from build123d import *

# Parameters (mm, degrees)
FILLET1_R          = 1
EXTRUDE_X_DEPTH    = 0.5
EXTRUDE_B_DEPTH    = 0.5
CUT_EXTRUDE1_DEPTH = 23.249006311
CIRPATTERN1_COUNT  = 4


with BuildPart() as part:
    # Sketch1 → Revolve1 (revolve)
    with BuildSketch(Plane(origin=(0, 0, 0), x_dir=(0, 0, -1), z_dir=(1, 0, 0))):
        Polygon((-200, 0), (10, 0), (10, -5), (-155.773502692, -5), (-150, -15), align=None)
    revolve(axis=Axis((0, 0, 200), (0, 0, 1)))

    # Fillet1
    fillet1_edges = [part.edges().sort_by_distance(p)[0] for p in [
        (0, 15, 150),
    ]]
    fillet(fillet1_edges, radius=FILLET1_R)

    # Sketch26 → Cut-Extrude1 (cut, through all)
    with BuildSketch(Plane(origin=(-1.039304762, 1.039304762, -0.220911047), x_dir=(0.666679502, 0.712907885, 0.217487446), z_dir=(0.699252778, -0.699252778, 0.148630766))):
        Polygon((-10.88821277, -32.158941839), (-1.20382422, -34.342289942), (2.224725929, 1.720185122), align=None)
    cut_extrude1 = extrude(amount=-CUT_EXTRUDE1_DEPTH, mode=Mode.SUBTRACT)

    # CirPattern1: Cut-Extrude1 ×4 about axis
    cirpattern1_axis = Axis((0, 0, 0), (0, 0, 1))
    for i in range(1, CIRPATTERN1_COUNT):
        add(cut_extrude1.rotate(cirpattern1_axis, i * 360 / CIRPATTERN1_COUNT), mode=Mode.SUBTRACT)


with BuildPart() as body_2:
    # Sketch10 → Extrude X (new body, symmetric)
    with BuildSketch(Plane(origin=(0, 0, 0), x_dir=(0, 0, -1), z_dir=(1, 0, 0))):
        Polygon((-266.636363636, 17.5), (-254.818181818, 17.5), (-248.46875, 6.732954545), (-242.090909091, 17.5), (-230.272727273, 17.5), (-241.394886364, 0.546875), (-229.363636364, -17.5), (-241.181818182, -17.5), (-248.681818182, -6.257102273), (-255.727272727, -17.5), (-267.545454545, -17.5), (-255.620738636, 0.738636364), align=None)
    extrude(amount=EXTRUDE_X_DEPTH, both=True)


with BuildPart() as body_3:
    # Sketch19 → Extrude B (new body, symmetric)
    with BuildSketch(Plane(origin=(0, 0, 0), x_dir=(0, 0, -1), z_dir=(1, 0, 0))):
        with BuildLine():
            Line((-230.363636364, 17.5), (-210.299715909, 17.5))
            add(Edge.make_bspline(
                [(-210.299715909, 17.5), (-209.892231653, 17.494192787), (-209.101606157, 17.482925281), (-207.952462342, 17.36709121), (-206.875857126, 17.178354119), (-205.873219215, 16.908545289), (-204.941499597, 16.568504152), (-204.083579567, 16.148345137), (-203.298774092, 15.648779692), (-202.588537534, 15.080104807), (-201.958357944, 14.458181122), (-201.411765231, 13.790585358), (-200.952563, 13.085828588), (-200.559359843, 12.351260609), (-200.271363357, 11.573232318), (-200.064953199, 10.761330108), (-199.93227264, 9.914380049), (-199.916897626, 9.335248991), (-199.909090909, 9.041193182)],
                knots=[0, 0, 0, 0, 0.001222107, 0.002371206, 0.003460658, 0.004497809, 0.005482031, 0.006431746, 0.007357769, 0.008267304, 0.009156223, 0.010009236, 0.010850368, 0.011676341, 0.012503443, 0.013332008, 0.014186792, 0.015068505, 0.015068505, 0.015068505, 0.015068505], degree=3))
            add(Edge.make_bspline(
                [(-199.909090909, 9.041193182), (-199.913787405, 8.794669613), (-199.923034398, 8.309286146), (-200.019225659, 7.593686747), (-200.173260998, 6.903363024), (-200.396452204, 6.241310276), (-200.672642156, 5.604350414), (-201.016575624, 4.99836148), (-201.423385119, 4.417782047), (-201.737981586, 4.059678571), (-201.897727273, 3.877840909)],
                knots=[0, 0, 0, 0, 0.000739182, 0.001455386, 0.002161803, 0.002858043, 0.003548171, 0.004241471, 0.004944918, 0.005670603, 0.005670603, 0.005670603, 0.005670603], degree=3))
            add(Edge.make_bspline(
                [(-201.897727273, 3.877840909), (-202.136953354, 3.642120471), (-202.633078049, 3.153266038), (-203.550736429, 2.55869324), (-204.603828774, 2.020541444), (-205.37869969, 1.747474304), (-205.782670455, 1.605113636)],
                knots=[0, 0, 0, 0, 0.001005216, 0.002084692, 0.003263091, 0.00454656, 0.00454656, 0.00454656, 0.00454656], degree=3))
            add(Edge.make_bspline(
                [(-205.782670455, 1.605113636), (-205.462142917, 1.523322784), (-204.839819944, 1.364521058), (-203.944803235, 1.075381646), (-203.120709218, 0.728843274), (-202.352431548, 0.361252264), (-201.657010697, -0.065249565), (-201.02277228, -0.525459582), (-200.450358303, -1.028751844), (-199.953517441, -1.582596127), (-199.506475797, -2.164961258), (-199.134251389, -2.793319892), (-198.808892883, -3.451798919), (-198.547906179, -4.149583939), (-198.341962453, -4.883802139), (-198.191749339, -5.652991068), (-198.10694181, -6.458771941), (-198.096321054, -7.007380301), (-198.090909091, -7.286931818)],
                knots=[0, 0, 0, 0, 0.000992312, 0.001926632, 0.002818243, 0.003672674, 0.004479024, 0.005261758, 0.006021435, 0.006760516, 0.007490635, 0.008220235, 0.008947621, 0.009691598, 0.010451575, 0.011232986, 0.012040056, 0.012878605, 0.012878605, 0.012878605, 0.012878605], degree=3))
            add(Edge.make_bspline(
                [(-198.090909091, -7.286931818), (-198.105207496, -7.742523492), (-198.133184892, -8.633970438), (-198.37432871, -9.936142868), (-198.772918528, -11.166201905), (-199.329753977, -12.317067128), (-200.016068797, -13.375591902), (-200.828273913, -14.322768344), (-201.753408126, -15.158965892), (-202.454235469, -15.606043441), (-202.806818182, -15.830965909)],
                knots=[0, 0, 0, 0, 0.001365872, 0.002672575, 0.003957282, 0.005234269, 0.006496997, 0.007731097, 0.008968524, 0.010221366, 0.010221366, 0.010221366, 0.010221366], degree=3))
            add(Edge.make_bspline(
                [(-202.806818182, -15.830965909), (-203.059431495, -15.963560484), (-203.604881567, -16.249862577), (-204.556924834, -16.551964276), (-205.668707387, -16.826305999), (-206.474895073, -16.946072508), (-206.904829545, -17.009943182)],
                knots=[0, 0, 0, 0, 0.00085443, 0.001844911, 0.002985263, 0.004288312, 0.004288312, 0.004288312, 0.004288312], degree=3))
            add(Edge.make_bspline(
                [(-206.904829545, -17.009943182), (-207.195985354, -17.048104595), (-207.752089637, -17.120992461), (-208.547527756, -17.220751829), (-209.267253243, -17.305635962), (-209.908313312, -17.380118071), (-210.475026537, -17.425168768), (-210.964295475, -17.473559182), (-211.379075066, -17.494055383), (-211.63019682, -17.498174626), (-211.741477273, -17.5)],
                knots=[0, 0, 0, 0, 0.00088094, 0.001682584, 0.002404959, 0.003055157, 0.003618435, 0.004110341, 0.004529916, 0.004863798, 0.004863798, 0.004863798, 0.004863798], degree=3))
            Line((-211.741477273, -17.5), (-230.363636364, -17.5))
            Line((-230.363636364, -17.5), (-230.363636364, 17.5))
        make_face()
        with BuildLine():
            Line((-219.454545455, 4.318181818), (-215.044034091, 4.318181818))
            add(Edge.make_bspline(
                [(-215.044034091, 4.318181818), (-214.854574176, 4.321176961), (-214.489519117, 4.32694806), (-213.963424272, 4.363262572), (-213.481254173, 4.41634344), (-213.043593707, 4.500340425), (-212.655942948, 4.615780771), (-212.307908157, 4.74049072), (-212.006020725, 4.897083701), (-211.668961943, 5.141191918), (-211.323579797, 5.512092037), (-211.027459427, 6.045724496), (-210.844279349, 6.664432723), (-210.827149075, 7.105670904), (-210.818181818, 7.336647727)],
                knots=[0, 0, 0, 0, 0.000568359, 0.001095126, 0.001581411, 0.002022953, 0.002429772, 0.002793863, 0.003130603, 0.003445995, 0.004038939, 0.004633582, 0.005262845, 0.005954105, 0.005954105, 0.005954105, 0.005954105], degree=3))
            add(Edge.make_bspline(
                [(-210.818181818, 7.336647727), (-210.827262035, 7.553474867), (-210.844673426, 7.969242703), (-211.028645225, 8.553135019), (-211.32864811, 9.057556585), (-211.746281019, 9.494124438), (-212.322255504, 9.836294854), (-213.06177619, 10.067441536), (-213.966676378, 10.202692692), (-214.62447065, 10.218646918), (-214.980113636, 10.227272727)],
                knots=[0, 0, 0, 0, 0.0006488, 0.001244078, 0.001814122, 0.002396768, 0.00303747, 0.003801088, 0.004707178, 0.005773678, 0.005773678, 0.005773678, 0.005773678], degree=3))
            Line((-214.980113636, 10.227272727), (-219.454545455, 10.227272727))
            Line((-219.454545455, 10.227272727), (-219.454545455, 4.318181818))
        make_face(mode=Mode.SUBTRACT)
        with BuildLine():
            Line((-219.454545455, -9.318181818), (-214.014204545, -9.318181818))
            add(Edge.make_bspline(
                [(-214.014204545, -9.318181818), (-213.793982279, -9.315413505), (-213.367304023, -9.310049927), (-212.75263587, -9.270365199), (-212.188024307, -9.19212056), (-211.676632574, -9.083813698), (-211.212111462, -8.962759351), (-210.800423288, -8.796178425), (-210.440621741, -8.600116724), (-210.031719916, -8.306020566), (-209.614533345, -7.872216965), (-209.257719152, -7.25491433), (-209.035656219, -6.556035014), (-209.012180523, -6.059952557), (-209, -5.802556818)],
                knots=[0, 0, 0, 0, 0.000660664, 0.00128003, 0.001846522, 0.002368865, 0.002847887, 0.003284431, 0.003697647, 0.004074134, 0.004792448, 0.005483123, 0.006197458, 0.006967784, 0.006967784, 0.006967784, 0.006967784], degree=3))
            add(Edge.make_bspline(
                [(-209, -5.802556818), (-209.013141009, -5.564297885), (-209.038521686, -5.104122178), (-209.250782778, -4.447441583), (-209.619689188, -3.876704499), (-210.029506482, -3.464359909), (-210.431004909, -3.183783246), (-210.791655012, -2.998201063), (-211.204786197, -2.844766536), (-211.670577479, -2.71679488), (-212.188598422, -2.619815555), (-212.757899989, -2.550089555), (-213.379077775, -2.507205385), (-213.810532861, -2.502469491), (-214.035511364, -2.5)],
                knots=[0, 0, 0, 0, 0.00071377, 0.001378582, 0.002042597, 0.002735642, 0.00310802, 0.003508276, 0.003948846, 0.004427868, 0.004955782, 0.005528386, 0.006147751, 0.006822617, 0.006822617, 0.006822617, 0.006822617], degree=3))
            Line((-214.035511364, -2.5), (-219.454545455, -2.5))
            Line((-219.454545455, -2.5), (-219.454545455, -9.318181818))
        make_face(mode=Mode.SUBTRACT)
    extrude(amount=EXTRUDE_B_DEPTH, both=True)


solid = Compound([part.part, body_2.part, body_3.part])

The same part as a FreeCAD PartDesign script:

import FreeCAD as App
import Part
import Sketcher
Q = App.Units.Quantity


def edges_at(feature, points):
    """Names of the edges that pass closest to the given points."""
    edges = feature.Shape.Edges
    near = lambda p: min(range(len(edges)), key=lambda i: edges[i].distToShape(Part.Vertex(*p))[0])
    return sorted({f"Edge{near(p) + 1}" for p in points})


def add_polygon(sketch, points):
    """Adds a closed chain of lines whose ends are joined by coincident constraints."""
    first, n = sketch.GeometryCount, len(points)
    for a, b in zip(points, points[1:] + points[:1]):
        sketch.addGeometry(Part.LineSegment(App.Vector(*a, 0), App.Vector(*b, 0)), False)
    for i in range(n):
        sketch.addConstraint(Sketcher.Constraint("Coincident", first + i, 2, first + (i + 1) % n, 1))

doc = App.newDocument("Part")
body = doc.addObject("PartDesign::Body", "Body")

# Sketch on YZ plane
sketch1 = body.newObject("Sketcher::SketchObject", "Sketch")
sketch1.AttachmentSupport = (doc.getObject("YZ_Plane"), [""])
sketch1.MapMode = "FlatFace"
add_polygon(sketch1, [(0, -10), (0, 200), (-15, 150), (-5, 156), (-5, -10)])  # lines 0-4
sketch1.addConstraint([
    Sketcher.Constraint("Vertical", 0),
    Sketcher.Constraint("Vertical", 3),
    Sketcher.Constraint("Horizontal", 4),
    Sketcher.Constraint("PointOnObject", 0, 2, -2),
    Sketcher.Constraint("DistanceX", 4, 1, 4, 2, Q("5 mm")),
    Sketcher.Constraint("DistanceY", 0, 1, 0, 2, Q("210 mm")),
    Sketcher.Constraint("Angle", 2, Q("30 deg")),
    Sketcher.Constraint("DistanceY", -1, 1, 0, 2, Q("200 mm")),
    Sketcher.Constraint("DistanceX", 1, 2, -1, 1, Q("15 mm")),
    Sketcher.Constraint("DistanceY", -1, 1, 1, 2, Q("150 mm")),
])
revolution = body.newObject("PartDesign::Revolution", "Revolution")
revolution.Profile = sketch1
revolution.ReferenceAxis = (sketch1, ["V_Axis"])
revolution.Angle = 360
doc.recompute()

fillet = body.newObject("PartDesign::Fillet", "Fillet")
fillet.Base = (revolution, edges_at(revolution, [(0, 15, 150)]))
fillet.Radius = 1

# Sketch on an angled plane
sketch2 = body.newObject("Sketcher::SketchObject", "Sketch001")
sketch2.Placement = App.Placement(App.Vector(-1.039305, 1.039305, -0.220911), App.Rotation(App.Vector(0.666679502, 0.712907885, 0.217487446), App.Vector(-0.258038746, -0.052989616, 0.964680313), App.Vector(0.699252778, -0.699252778, 0.148630766), "ZXY"))
add_polygon(sketch2, [(-11, -32), (-1, -34), (2, 2)])  # lines 0-2
sketch2.addConstraint([
    Sketcher.Constraint("Distance", 1, Q("36.225089 mm")),
    Sketcher.Constraint("DistanceY", 0, 2, -1, 1, Q("34.34229 mm")),
    Sketcher.Constraint("DistanceY", 2, 2, -1, 1, Q("32.158942 mm")),
    Sketcher.Constraint("DistanceX", 0, 2, 1, 2, Q("3.42855 mm")),
    Sketcher.Constraint("DistanceX", 2, 2, 0, 2, Q("9.684389 mm")),
    Sketcher.Constraint("DistanceX", 0, 2, -1, 1, Q("1.203824 mm")),
])
pocket1 = body.newObject("PartDesign::Pocket", "Pocket")
pocket1.Profile = sketch2
pocket1.Type = "ThroughAll"
doc.recompute()

polarpattern = body.newObject("PartDesign::PolarPattern", "PolarPattern")
polarpattern.Originals = [pocket1]
polarpattern.Axis = (doc.getObject("Z_Axis"), [""])
polarpattern.Angle = 360
polarpattern.Occurrences = 4
body.Tip = polarpattern
body2 = doc.addObject("PartDesign::Body", "Body001")

# Sketch on YZ plane
sketch3 = body2.newObject("Sketcher::SketchObject", "Sketch002")
sketch3.AttachmentSupport = (doc.getObject("YZ_Plane001"), [""])
sketch3.MapMode = "FlatFace"
add_polygon(sketch3, [(18, 255), (18, 267), (1, 256), (-18, 268), (-18, 256), (-6, 249), (-18, 241), (-18, 229), (1, 241), (18, 230), (18, 242), (7, 248)])  # lines 0-11
sketch3.addConstraint([
    Sketcher.Constraint("Vertical", 0),
    Sketcher.Constraint("Vertical", 3),
    Sketcher.Constraint("Vertical", 6),
    Sketcher.Constraint("Vertical", 9),
    Sketcher.Constraint("Vertical", 3, 2, 5, 2),
    Sketcher.Constraint("Vertical", 0, 2, 8, 2),
    Sketcher.Constraint("Equal", 0, 3),
    Sketcher.Constraint("Equal", 3, 6),
    Sketcher.Constraint("Equal", 6, 9),
    Sketcher.Constraint("DistanceX", 2, 2, 0, 2, Q("35 mm")),
    Sketcher.Constraint("DistanceX", -1, 1, 0, 2, Q("17.5 mm")),
    Sketcher.Constraint("DistanceY", 5, 2, 4, 2, Q("7.5 mm")),
    Sketcher.Constraint("Distance", 1, Q("20.057101 mm")),
    Sketcher.Constraint("DistanceY", 0, 1, 0, 2, Q("11.818182 mm")),
    Sketcher.Constraint("Distance", 4, Q("13.268051 mm")),
    Sketcher.Constraint("Distance", 5, Q("13.514908 mm")),
    Sketcher.Constraint("Distance", 8, Q("20.275869 mm")),
    Sketcher.Constraint("DistanceY", -1, 1, 1, 2, Q("255.620739 mm")),
    Sketcher.Constraint("DistanceY", -1, 1, 4, 2, Q("248.681818 mm")),
    Sketcher.Constraint("DistanceY", -1, 1, 9, 2, Q("242.090909 mm")),
    Sketcher.Constraint("DistanceY", -1, 1, 10, 2, Q("248.46875 mm")),
    Sketcher.Constraint("DistanceY", -1, 1, 11, 2, Q("254.818182 mm")),
    Sketcher.Constraint("DistanceY", 7, 2, 4, 2, Q("7.286932 mm")),
    Sketcher.Constraint("DistanceX", 1, 2, 10, 2, Q("5.994318 mm")),
])
pad1 = body2.newObject("PartDesign::Pad", "Pad")
pad1.Profile = sketch3
pad1.Length = 1
pad1.Midplane = True
body3 = doc.addObject("PartDesign::Body", "Body002")

# Sketch on YZ plane
sketch4 = body3.newObject("Sketcher::SketchObject", "Sketch003")
sketch4.AttachmentSupport = (doc.getObject("YZ_Plane002"), [""])
sketch4.MapMode = "FlatFace"
sketch4.addGeometry([
    Part.LineSegment(App.Vector(17.5, 210.299716, 0), App.Vector(17.5, 230.363636, 0)),  # 0
    Part.LineSegment(App.Vector(17.5, 230.363636, 0), App.Vector(-17.5, 230.363636, 0)),  # 1
    Part.LineSegment(App.Vector(-17.5, 230.363636, 0), App.Vector(-17.5, 211.741477, 0)),  # 2
    Part.BSplineCurve([App.Vector(-17.009943, 206.90483, 0), App.Vector(-17.048105, 207.195985, 0), App.Vector(-17.120992, 207.75209, 0), App.Vector(-17.220752, 208.547528, 0), App.Vector(-17.305636, 209.267253, 0), App.Vector(-17.380118, 209.908313, 0), App.Vector(-17.425169, 210.475027, 0), App.Vector(-17.473559, 210.964295, 0), App.Vector(-17.494055, 211.379075, 0), App.Vector(-17.498175, 211.630197, 0), App.Vector(-17.5, 211.741477, 0)], [4, 1, 1, 1, 1, 1, 1, 1, 4], [0, 0.00088094, 0.001682584, 0.002404959, 0.003055157, 0.003618435, 0.004110341, 0.004529916, 0.004863798], False, 3, [1, 1, 1, 1, 1, 1, 1, 1, 1, 1, 1], False),  # 3
    Part.BSplineCurve([App.Vector(-15.830966, 202.806818, 0), App.Vector(-15.96356, 203.059431, 0), App.Vector(-16.249863, 203.604882, 0), App.Vector(-16.551964, 204.556925, 0), App.Vector(-16.826306, 205.668707, 0), App.Vector(-16.946073, 206.474895, 0), App.Vector(-17.009943, 206.90483, 0)], [4, 1, 1, 1, 4], [0, 0.00085443, 0.001844911, 0.002985263, 0.004288312], False, 3, [1, 1, 1, 1, 1, 1, 1], False),  # 4
    Part.BSplineCurve([App.Vector(-7.286932, 198.090909, 0), App.Vector(-7.742523, 198.105207, 0), App.Vector(-8.63397, 198.133185, 0), App.Vector(-9.936143, 198.374329, 0), App.Vector(-11.166202, 198.772919, 0), App.Vector(-12.317067, 199.329754, 0), App.Vector(-13.375592, 200.016069, 0), App.Vector(-14.322768, 200.828274, 0), App.Vector(-15.158966, 201.753408, 0), App.Vector(-15.606043, 202.454235, 0), App.Vector(-15.830966, 202.806818, 0)], [4, 1, 1, 1, 1, 1, 1, 1, 4], [0, 0.001365872, 0.002672575, 0.003957282, 0.005234269, 0.006496997, 0.007731097, 0.008968524, 0.010221366], False, 3, [1, 1, 1, 1, 1, 1, 1, 1, 1, 1, 1], False),  # 5
    Part.BSplineCurve([App.Vector(1.605114, 205.78267, 0), App.Vector(1.523323, 205.462143, 0), App.Vector(1.364521, 204.83982, 0), App.Vector(1.075382, 203.944803, 0), App.Vector(0.728843, 203.120709, 0), App.Vector(0.361252, 202.352432, 0), App.Vector(-0.06525, 201.657011, 0), App.Vector(-0.52546, 201.022772, 0), App.Vector(-1.028752, 200.450358, 0), App.Vector(-1.582596, 199.953517, 0), App.Vector(-2.164961, 199.506476, 0), App.Vector(-2.79332, 199.134251, 0), App.Vector(-3.451799, 198.808893, 0), App.Vector(-4.149584, 198.547906, 0), App.Vector(-4.883802, 198.341962, 0), App.Vector(-5.652991, 198.191749, 0), App.Vector(-6.458772, 198.106942, 0), App.Vector(-7.00738, 198.096321, 0), App.Vector(-7.286932, 198.090909, 0)], [4, 1, 1, 1, 1, 1, 1, 1, 1, 1, 1, 1, 1, 1, 1, 1, 4], [0, 0.000992312, 0.001926632, 0.002818243, 0.003672674, 0.004479024, 0.005261758, 0.006021435, 0.006760516, 0.007490635, 0.008220235, 0.008947621, 0.009691598, 0.010451575, 0.011232986, 0.012040056, 0.012878605], False, 3, [1, 1, 1, 1, 1, 1, 1, 1, 1, 1, 1, 1, 1, 1, 1, 1, 1, 1, 1], False),  # 6
    Part.BSplineCurve([App.Vector(3.877841, 201.897727, 0), App.Vector(3.64212, 202.136953, 0), App.Vector(3.153266, 202.633078, 0), App.Vector(2.558693, 203.550736, 0), App.Vector(2.020541, 204.603829, 0), App.Vector(1.747474, 205.3787, 0), App.Vector(1.605114, 205.78267, 0)], [4, 1, 1, 1, 4], [0, 0.001005216, 0.002084692, 0.003263091, 0.00454656], False, 3, [1, 1, 1, 1, 1, 1, 1], False),  # 7
    Part.BSplineCurve([App.Vector(9.041193, 199.909091, 0), App.Vector(8.79467, 199.913787, 0), App.Vector(8.309286, 199.923034, 0), App.Vector(7.593687, 200.019226, 0), App.Vector(6.903363, 200.173261, 0), App.Vector(6.24131, 200.396452, 0), App.Vector(5.60435, 200.672642, 0), App.Vector(4.998361, 201.016576, 0), App.Vector(4.417782, 201.423385, 0), App.Vector(4.059679, 201.737982, 0), App.Vector(3.877841, 201.897727, 0)], [4, 1, 1, 1, 1, 1, 1, 1, 4], [0, 0.000739182, 0.001455386, 0.002161803, 0.002858043, 0.003548171, 0.004241471, 0.004944918, 0.005670603], False, 3, [1, 1, 1, 1, 1, 1, 1, 1, 1, 1, 1], False),  # 8
    Part.BSplineCurve([App.Vector(17.5, 210.299716, 0), App.Vector(17.494193, 209.892232, 0), App.Vector(17.482925, 209.101606, 0), App.Vector(17.367091, 207.952462, 0), App.Vector(17.178354, 206.875857, 0), App.Vector(16.908545, 205.873219, 0), App.Vector(16.568504, 204.9415, 0), App.Vector(16.148345, 204.08358, 0), App.Vector(15.64878, 203.298774, 0), App.Vector(15.080105, 202.588538, 0), App.Vector(14.458181, 201.958358, 0), App.Vector(13.790585, 201.411765, 0), App.Vector(13.085829, 200.952563, 0), App.Vector(12.351261, 200.55936, 0), App.Vector(11.573232, 200.271363, 0), App.Vector(10.76133, 200.064953, 0), App.Vector(9.91438, 199.932273, 0), App.Vector(9.335249, 199.916898, 0), App.Vector(9.041193, 199.909091, 0)], [4, 1, 1, 1, 1, 1, 1, 1, 1, 1, 1, 1, 1, 1, 1, 1, 4], [0, 0.001222107, 0.002371206, 0.003460658, 0.004497809, 0.005482031, 0.006431746, 0.007357769, 0.008267304, 0.009156223, 0.010009236, 0.010850368, 0.011676341, 0.012503443, 0.013332008, 0.014186792, 0.015068505], False, 3, [1, 1, 1, 1, 1, 1, 1, 1, 1, 1, 1, 1, 1, 1, 1, 1, 1, 1, 1], False),  # 9
    Part.LineSegment(App.Vector(-9.318182, 219.454545, 0), App.Vector(-2.5, 219.454545, 0)),  # 10
    Part.LineSegment(App.Vector(-2.5, 219.454545, 0), App.Vector(-2.5, 214.035511, 0)),  # 11
    Part.BSplineCurve([App.Vector(-5.802557, 209, 0), App.Vector(-5.564298, 209.013141, 0), App.Vector(-5.104122, 209.038522, 0), App.Vector(-4.447442, 209.250783, 0), App.Vector(-3.876704, 209.619689, 0), App.Vector(-3.46436, 210.029506, 0), App.Vector(-3.183783, 210.431005, 0), App.Vector(-2.998201, 210.791655, 0), App.Vector(-2.844767, 211.204786, 0), App.Vector(-2.716795, 211.670577, 0), App.Vector(-2.619816, 212.188598, 0), App.Vector(-2.55009, 212.7579, 0), App.Vector(-2.507205, 213.379078, 0), App.Vector(-2.502469, 213.810533, 0), App.Vector(-2.5, 214.035511, 0)], [4, 1, 1, 1, 1, 1, 1, 1, 1, 1, 1, 1, 4], [0, 0.00071377, 0.001378582, 0.002042597, 0.002735642, 0.00310802, 0.003508276, 0.003948846, 0.004427868, 0.004955782, 0.005528386, 0.006147751, 0.006822617], False, 3, [1, 1, 1, 1, 1, 1, 1, 1, 1, 1, 1, 1, 1, 1, 1], False),  # 12
    Part.BSplineCurve([App.Vector(-9.318182, 214.014205, 0), App.Vector(-9.315414, 213.793982, 0), App.Vector(-9.31005, 213.367304, 0), App.Vector(-9.270365, 212.752636, 0), App.Vector(-9.192121, 212.188024, 0), App.Vector(-9.083814, 211.676633, 0), App.Vector(-8.962759, 211.212111, 0), App.Vector(-8.796178, 210.800423, 0), App.Vector(-8.600117, 210.440622, 0), App.Vector(-8.306021, 210.03172, 0), App.Vector(-7.872217, 209.614533, 0), App.Vector(-7.254914, 209.257719, 0), App.Vector(-6.556035, 209.035656, 0), App.Vector(-6.059953, 209.012181, 0), App.Vector(-5.802557, 209, 0)], [4, 1, 1, 1, 1, 1, 1, 1, 1, 1, 1, 1, 4], [0, 0.000660664, 0.00128003, 0.001846522, 0.002368865, 0.002847887, 0.003284431, 0.003697647, 0.004074134, 0.004792448, 0.005483123, 0.006197458, 0.006967784], False, 3, [1, 1, 1, 1, 1, 1, 1, 1, 1, 1, 1, 1, 1, 1, 1], False),  # 13
    Part.LineSegment(App.Vector(-9.318182, 214.014205, 0), App.Vector(-9.318182, 219.454545, 0)),  # 14
    Part.LineSegment(App.Vector(4.318182, 219.454545, 0), App.Vector(10.227273, 219.454545, 0)),  # 15
    Part.LineSegment(App.Vector(10.227273, 219.454545, 0), App.Vector(10.227273, 214.980114, 0)),  # 16
    Part.BSplineCurve([App.Vector(7.336648, 210.818182, 0), App.Vector(7.553475, 210.827262, 0), App.Vector(7.969243, 210.844673, 0), App.Vector(8.553135, 211.028645, 0), App.Vector(9.057557, 211.328648, 0), App.Vector(9.494124, 211.746281, 0), App.Vector(9.836295, 212.322256, 0), App.Vector(10.067442, 213.061776, 0), App.Vector(10.202693, 213.966676, 0), App.Vector(10.218647, 214.624471, 0), App.Vector(10.227273, 214.980114, 0)], [4, 1, 1, 1, 1, 1, 1, 1, 4], [0, 0.0006488, 0.001244078, 0.001814122, 0.002396768, 0.00303747, 0.003801088, 0.004707178, 0.005773678], False, 3, [1, 1, 1, 1, 1, 1, 1, 1, 1, 1, 1], False),  # 17
    Part.BSplineCurve([App.Vector(4.318182, 215.044034, 0), App.Vector(4.321177, 214.854574, 0), App.Vector(4.326948, 214.489519, 0), App.Vector(4.363263, 213.963424, 0), App.Vector(4.416343, 213.481254, 0), App.Vector(4.50034, 213.043594, 0), App.Vector(4.615781, 212.655943, 0), App.Vector(4.740491, 212.307908, 0), App.Vector(4.897084, 212.006021, 0), App.Vector(5.141192, 211.668962, 0), App.Vector(5.512092, 211.32358, 0), App.Vector(6.045724, 211.027459, 0), App.Vector(6.664433, 210.844279, 0), App.Vector(7.105671, 210.827149, 0), App.Vector(7.336648, 210.818182, 0)], [4, 1, 1, 1, 1, 1, 1, 1, 1, 1, 1, 1, 4], [0, 0.000568359, 0.001095126, 0.001581411, 0.002022953, 0.002429772, 0.002793863, 0.003130603, 0.003445995, 0.004038939, 0.004633582, 0.005262845, 0.005954105], False, 3, [1, 1, 1, 1, 1, 1, 1, 1, 1, 1, 1, 1, 1, 1, 1], False),  # 18
    Part.LineSegment(App.Vector(4.318182, 215.044034, 0), App.Vector(4.318182, 219.454545, 0)),  # 19
], False)
sketch4.addConstraint([
    Sketcher.Constraint("Block", 3),
    Sketcher.Constraint("Block", 4),
    Sketcher.Constraint("Block", 5),
    Sketcher.Constraint("Block", 6),
    Sketcher.Constraint("Block", 7),
    Sketcher.Constraint("Block", 8),
    Sketcher.Constraint("Block", 9),
    Sketcher.Constraint("Block", 12),
    Sketcher.Constraint("Block", 13),
    Sketcher.Constraint("Block", 17),
    Sketcher.Constraint("Block", 18),
    Sketcher.Constraint("Coincident", 0, 2, 1, 1),
    Sketcher.Constraint("Coincident", 1, 2, 2, 1),
    Sketcher.Constraint("Coincident", 2, 2, 3, 2),
    Sketcher.Constraint("Coincident", 9, 1, 0, 1),
    Sketcher.Constraint("Coincident", 10, 2, 11, 1),
    Sketcher.Constraint("Coincident", 11, 2, 12, 2),
    Sketcher.Constraint("Coincident", 13, 1, 14, 1),
    Sketcher.Constraint("Coincident", 14, 2, 10, 1),
    Sketcher.Constraint("Coincident", 15, 2, 16, 1),
    Sketcher.Constraint("Coincident", 16, 2, 17, 2),
    Sketcher.Constraint("Coincident", 18, 1, 19, 1),
    Sketcher.Constraint("Coincident", 19, 2, 15, 1),
    Sketcher.Constraint("Vertical", 0),
    Sketcher.Constraint("Horizontal", 1),
    Sketcher.Constraint("Vertical", 2),
    Sketcher.Constraint("Horizontal", 10),
    Sketcher.Constraint("Vertical", 11),
    Sketcher.Constraint("Vertical", 14),
    Sketcher.Constraint("Horizontal", 15),
    Sketcher.Constraint("Vertical", 16),
    Sketcher.Constraint("Vertical", 19),
    Sketcher.Constraint("Horizontal", 14, 2, 15, 2),
    Sketcher.Constraint("DistanceY", 0, 1, 0, 2, Q("20.06392 mm")),
    Sketcher.Constraint("DistanceY", 14, 1, 14, 2, Q("5.440341 mm")),
])
pad2 = body3.newObject("PartDesign::Pad", "Pad001")
pad2.Profile = sketch4
pad2.Length = 1
pad2.Midplane = True

doc.recompute()
